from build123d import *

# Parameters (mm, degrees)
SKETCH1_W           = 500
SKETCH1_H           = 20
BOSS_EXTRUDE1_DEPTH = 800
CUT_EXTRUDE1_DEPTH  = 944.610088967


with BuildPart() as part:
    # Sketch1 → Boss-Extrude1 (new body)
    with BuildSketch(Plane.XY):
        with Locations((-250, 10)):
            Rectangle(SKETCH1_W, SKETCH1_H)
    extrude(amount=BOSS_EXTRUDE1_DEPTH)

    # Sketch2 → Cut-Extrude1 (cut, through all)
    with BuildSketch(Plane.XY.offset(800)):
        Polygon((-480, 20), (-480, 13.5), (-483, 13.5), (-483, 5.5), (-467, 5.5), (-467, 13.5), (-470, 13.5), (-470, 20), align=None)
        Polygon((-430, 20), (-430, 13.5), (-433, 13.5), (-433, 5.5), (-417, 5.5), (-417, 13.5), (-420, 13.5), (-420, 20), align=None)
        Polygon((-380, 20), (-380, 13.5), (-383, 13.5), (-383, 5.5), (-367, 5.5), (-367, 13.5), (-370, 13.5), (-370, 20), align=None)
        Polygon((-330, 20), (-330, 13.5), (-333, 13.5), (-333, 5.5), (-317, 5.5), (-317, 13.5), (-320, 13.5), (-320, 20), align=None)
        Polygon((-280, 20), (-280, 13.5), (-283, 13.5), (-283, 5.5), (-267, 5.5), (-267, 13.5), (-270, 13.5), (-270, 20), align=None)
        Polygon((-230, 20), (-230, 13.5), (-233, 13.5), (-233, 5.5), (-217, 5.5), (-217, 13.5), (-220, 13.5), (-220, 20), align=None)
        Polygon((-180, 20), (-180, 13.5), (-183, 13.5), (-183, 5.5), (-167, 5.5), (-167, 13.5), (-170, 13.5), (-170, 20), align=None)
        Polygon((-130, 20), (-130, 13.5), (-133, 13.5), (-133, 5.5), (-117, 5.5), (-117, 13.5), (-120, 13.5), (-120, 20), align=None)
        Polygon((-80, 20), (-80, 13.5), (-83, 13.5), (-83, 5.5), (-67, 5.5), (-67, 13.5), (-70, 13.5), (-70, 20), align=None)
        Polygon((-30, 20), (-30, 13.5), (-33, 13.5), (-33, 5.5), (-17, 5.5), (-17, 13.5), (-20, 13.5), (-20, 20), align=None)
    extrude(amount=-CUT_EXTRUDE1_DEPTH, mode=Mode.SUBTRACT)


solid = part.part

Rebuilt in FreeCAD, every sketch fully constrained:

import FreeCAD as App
import Part
import Sketcher
from FreeCAD import Vector

doc = App.newDocument("Part")
params = doc.addObject("Spreadsheet::Sheet", "Params")
for row, (alias, value) in enumerate([
    ("sketch1_width", "500 mm"),
    ("sketch1_height", "20 mm"),
    ("pad1_length", "800 mm"),
    ("sketch2_width", "3 mm"),
    ("sketch2_width2", "16 mm"),
    ("sketch2_height", "8 mm"),
    ("sketch2_height2", "6.5 mm"),
], start=1):
    params.set(f"A{row}", alias)
    params.set(f"B{row}", "=" + value)
    params.setAlias(f"B{row}", alias)

body = doc.addObject("PartDesign::Body", "Body")

# Sketch on XY plane
sketch1 = doc.addObject("Sketcher::SketchObject", "Sketch")
body.addObject(sketch1)
sketch1.AttachmentSupport = (doc.XY_Plane, [""])
sketch1.MapMode = "FlatFace"
sketch1.addGeometry([
    Part.LineSegment(Vector(-500, 20, 0), Vector(-500, 0, 0)),
    Part.LineSegment(Vector(-500, 0, 0), Vector(0, 0, 0)),
    Part.LineSegment(Vector(0, 0, 0), Vector(0, 20, 0)),
    Part.LineSegment(Vector(0, 20, 0), Vector(-500, 20, 0)),
], False)
sketch1.addConstraint([
    Sketcher.Constraint("Coincident", 0, 2, 1, 1),
    Sketcher.Constraint("Coincident", 1, 2, 2, 1),
    Sketcher.Constraint("Coincident", 2, 2, 3, 1),
    Sketcher.Constraint("Coincident", 3, 2, 0, 1),
    Sketcher.Constraint("Vertical", 0),
    Sketcher.Constraint("Horizontal", 1),
    Sketcher.Constraint("Vertical", 2),
    Sketcher.Constraint("Horizontal", 3),
    Sketcher.Constraint("Coincident", 1, 2, -1, 1),
    Sketcher.Constraint("DistanceX", 1, 1, 1, 2, 500.0),
    Sketcher.Constraint("DistanceY", 0, 2, 0, 1, 20.0),
])
sketch1.setExpression("Constraints[9]", "Params.sketch1_width")
sketch1.setExpression("Constraints[10]", "Params.sketch1_height")
pad1 = doc.addObject("PartDesign::Pad", "Pad")
body.addObject(pad1)
pad1.Profile = sketch1
pad1.setExpression("Length", "Params.pad1_length")

# Sketch on XY plane
sketch2 = doc.addObject("Sketcher::SketchObject", "Sketch001")
body.addObject(sketch2)
sketch2.AttachmentSupport = (doc.XY_Plane, [""])
sketch2.MapMode = "FlatFace"
sketch2.AttachmentOffset = App.Placement(Vector(0, 0, 800), App.Rotation())
sketch2.addGeometry([
    Part.LineSegment(Vector(-480, 20, 0), Vector(-480, 13.5, 0)),  # 0
    Part.LineSegment(Vector(-480, 13.5, 0), Vector(-483, 13.5, 0)),  # 1
    Part.LineSegment(Vector(-483, 13.5, 0), Vector(-483, 5.5, 0)),  # 2
    Part.LineSegment(Vector(-483, 5.5, 0), Vector(-467, 5.5, 0)),  # 3
    Part.LineSegment(Vector(-467, 5.5, 0), Vector(-467, 13.5, 0)),  # 4
    Part.LineSegment(Vector(-467, 13.5, 0), Vector(-470, 13.5, 0)),  # 5
    Part.LineSegment(Vector(-470, 13.5, 0), Vector(-470, 20, 0)),  # 6
    Part.LineSegment(Vector(-470, 20, 0), Vector(-480, 20, 0)),  # 7
    Part.LineSegment(Vector(-430, 20, 0), Vector(-430, 13.5, 0)),  # 8
    Part.LineSegment(Vector(-430, 13.5, 0), Vector(-433, 13.5, 0)),  # 9
    Part.LineSegment(Vector(-433, 13.5, 0), Vector(-433, 5.5, 0)),  # 10
    Part.LineSegment(Vector(-433, 5.5, 0), Vector(-417, 5.5, 0)),  # 11
    Part.LineSegment(Vector(-417, 5.5, 0), Vector(-417, 13.5, 0)),  # 12
    Part.LineSegment(Vector(-417, 13.5, 0), Vector(-420, 13.5, 0)),  # 13
    Part.LineSegment(Vector(-420, 13.5, 0), Vector(-420, 20, 0)),  # 14
    Part.LineSegment(Vector(-420, 20, 0), Vector(-430, 20, 0)),  # 15
    Part.LineSegment(Vector(-380, 20, 0), Vector(-380, 13.5, 0)),  # 16
    Part.LineSegment(Vector(-380, 13.5, 0), Vector(-383, 13.5, 0)),  # 17
    Part.LineSegment(Vector(-383, 13.5, 0), Vector(-383, 5.5, 0)),  # 18
    Part.LineSegment(Vector(-383, 5.5, 0), Vector(-367, 5.5, 0)),  # 19
    Part.LineSegment(Vector(-367, 5.5, 0), Vector(-367, 13.5, 0)),  # 20
    Part.LineSegment(Vector(-367, 13.5, 0), Vector(-370, 13.5, 0)),  # 21
    Part.LineSegment(Vector(-370, 13.5, 0), Vector(-370, 20, 0)),  # 22
    Part.LineSegment(Vector(-370, 20, 0), Vector(-380, 20, 0)),  # 23
    Part.LineSegment(Vector(-330, 20, 0), Vector(-330, 13.5, 0)),  # 24
    Part.LineSegment(Vector(-330, 13.5, 0), Vector(-333, 13.5, 0)),  # 25
    Part.LineSegment(Vector(-333, 13.5, 0), Vector(-333, 5.5, 0)),  # 26
    Part.LineSegment(Vector(-333, 5.5, 0), Vector(-317, 5.5, 0)),  # 27
    Part.LineSegment(Vector(-317, 5.5, 0), Vector(-317, 13.5, 0)),  # 28
    Part.LineSegment(Vector(-317, 13.5, 0), Vector(-320, 13.5, 0)),  # 29
    Part.LineSegment(Vector(-320, 13.5, 0), Vector(-320, 20, 0)),  # 30
    Part.LineSegment(Vector(-320, 20, 0), Vector(-330, 20, 0)),  # 31
    Part.LineSegment(Vector(-280, 20, 0), Vector(-280, 13.5, 0)),  # 32
    Part.LineSegment(Vector(-280, 13.5, 0), Vector(-283, 13.5, 0)),  # 33
    Part.LineSegment(Vector(-283, 13.5, 0), Vector(-283, 5.5, 0)),  # 34
    Part.LineSegment(Vector(-283, 5.5, 0), Vector(-267, 5.5, 0)),  # 35
    Part.LineSegment(Vector(-267, 5.5, 0), Vector(-267, 13.5, 0)),  # 36
    Part.LineSegment(Vector(-267, 13.5, 0), Vector(-270, 13.5, 0)),  # 37
    Part.LineSegment(Vector(-270, 13.5, 0), Vector(-270, 20, 0)),  # 38
    Part.LineSegment(Vector(-270, 20, 0), Vector(-280, 20, 0)),  # 39
    Part.LineSegment(Vector(-230, 20, 0), Vector(-230, 13.5, 0)),  # 40
    Part.LineSegment(Vector(-230, 13.5, 0), Vector(-233, 13.5, 0)),  # 41
    Part.LineSegment(Vector(-233, 13.5, 0), Vector(-233, 5.5, 0)),  # 42
    Part.LineSegment(Vector(-233, 5.5, 0), Vector(-217, 5.5, 0)),  # 43
    Part.LineSegment(Vector(-217, 5.5, 0), Vector(-217, 13.5, 0)),  # 44
    Part.LineSegment(Vector(-217, 13.5, 0), Vector(-220, 13.5, 0)),  # 45
    Part.LineSegment(Vector(-220, 13.5, 0), Vector(-220, 20, 0)),  # 46
    Part.LineSegment(Vector(-220, 20, 0), Vector(-230, 20, 0)),  # 47
    Part.LineSegment(Vector(-180, 20, 0), Vector(-180, 13.5, 0)),  # 48
    Part.LineSegment(Vector(-180, 13.5, 0), Vector(-183, 13.5, 0)),  # 49
    Part.LineSegment(Vector(-183, 13.5, 0), Vector(-183, 5.5, 0)),  # 50
    Part.LineSegment(Vector(-183, 5.5, 0), Vector(-167, 5.5, 0)),  # 51
    Part.LineSegment(Vector(-167, 5.5, 0), Vector(-167, 13.5, 0)),  # 52
    Part.LineSegment(Vector(-167, 13.5, 0), Vector(-170, 13.5, 0)),  # 53
    Part.LineSegment(Vector(-170, 13.5, 0), Vector(-170, 20, 0)),  # 54
    Part.LineSegment(Vector(-170, 20, 0), Vector(-180, 20, 0)),  # 55
    Part.LineSegment(Vector(-130, 20, 0), Vector(-130, 13.5, 0)),  # 56
    Part.LineSegment(Vector(-130, 13.5, 0), Vector(-133, 13.5, 0)),  # 57
    Part.LineSegment(Vector(-133, 13.5, 0), Vector(-133, 5.5, 0)),  # 58
    Part.LineSegment(Vector(-133, 5.5, 0), Vector(-117, 5.5, 0)),  # 59
    Part.LineSegment(Vector(-117, 5.5, 0), Vector(-117, 13.5, 0)),  # 60
    Part.LineSegment(Vector(-117, 13.5, 0), Vector(-120, 13.5, 0)),  # 61
    Part.LineSegment(Vector(-120, 13.5, 0), Vector(-120, 20, 0)),  # 62
    Part.LineSegment(Vector(-120, 20, 0), Vector(-130, 20, 0)),  # 63
    Part.LineSegment(Vector(-80, 20, 0), Vector(-80, 13.5, 0)),  # 64
    Part.LineSegment(Vector(-80, 13.5, 0), Vector(-83, 13.5, 0)),  # 65
    Part.LineSegment(Vector(-83, 13.5, 0), Vector(-83, 5.5, 0)),  # 66
    Part.LineSegment(Vector(-83, 5.5, 0), Vector(-67, 5.5, 0)),  # 67
    Part.LineSegment(Vector(-67, 5.5, 0), Vector(-67, 13.5, 0)),  # 68
    Part.LineSegment(Vector(-67, 13.5, 0), Vector(-70, 13.5, 0)),  # 69
    Part.LineSegment(Vector(-70, 13.5, 0), Vector(-70, 20, 0)),  # 70
    Part.LineSegment(Vector(-70, 20, 0), Vector(-80, 20, 0)),  # 71
    Part.LineSegment(Vector(-30, 20, 0), Vector(-30, 13.5, 0)),  # 72
    Part.LineSegment(Vector(-30, 13.5, 0), Vector(-33, 13.5, 0)),  # 73
    Part.LineSegment(Vector(-33, 13.5, 0), Vector(-33, 5.5, 0)),  # 74
    Part.LineSegment(Vector(-33, 5.5, 0), Vector(-17, 5.5, 0)),  # 75
    Part.LineSegment(Vector(-17, 5.5, 0), Vector(-17, 13.5, 0)),  # 76
    Part.LineSegment(Vector(-17, 13.5, 0), Vector(-20, 13.5, 0)),  # 77
    Part.LineSegment(Vector(-20, 13.5, 0), Vector(-20, 20, 0)),  # 78
    Part.LineSegment(Vector(-20, 20, 0), Vector(-30, 20, 0)),  # 79
], False)
sketch2.addConstraint([
    Sketcher.Constraint("Coincident", 0, 2, 1, 1),
    Sketcher.Constraint("Coincident", 1, 2, 2, 1),
    Sketcher.Constraint("Coincident", 2, 2, 3, 1),
    Sketcher.Constraint("Coincident", 3, 2, 4, 1),
    Sketcher.Constraint("Coincident", 4, 2, 5, 1),
    Sketcher.Constraint("Coincident", 5, 2, 6, 1),
    Sketcher.Constraint("Coincident", 6, 2, 7, 1),
    Sketcher.Constraint("Coincident", 7, 2, 0, 1),
    Sketcher.Constraint("Coincident", 8, 2, 9, 1),
    Sketcher.Constraint("Coincident", 9, 2, 10, 1),
    Sketcher.Constraint("Coincident", 10, 2, 11, 1),
    Sketcher.Constraint("Coincident", 11, 2, 12, 1),
    Sketcher.Constraint("Coincident", 12, 2, 13, 1),
    Sketcher.Constraint("Coincident", 13, 2, 14, 1),
    Sketcher.Constraint("Coincident", 14, 2, 15, 1),
    Sketcher.Constraint("Coincident", 15, 2, 8, 1),
    Sketcher.Constraint("Coincident", 16, 2, 17, 1),
    Sketcher.Constraint("Coincident", 17, 2, 18, 1),
    Sketcher.Constraint("Coincident", 18, 2, 19, 1),
    Sketcher.Constraint("Coincident", 19, 2, 20, 1),
    Sketcher.Constraint("Coincident", 20, 2, 21, 1),
    Sketcher.Constraint("Coincident", 21, 2, 22, 1),
    Sketcher.Constraint("Coincident", 22, 2, 23, 1),
    Sketcher.Constraint("Coincident", 23, 2, 16, 1),
    Sketcher.Constraint("Coincident", 24, 2, 25, 1),
    Sketcher.Constraint("Coincident", 25, 2, 26, 1),
    Sketcher.Constraint("Coincident", 26, 2, 27, 1),
    Sketcher.Constraint("Coincident", 27, 2, 28, 1),
    Sketcher.Constraint("Coincident", 28, 2, 29, 1),
    Sketcher.Constraint("Coincident", 29, 2, 30, 1),
    Sketcher.Constraint("Coincident", 30, 2, 31, 1),
    Sketcher.Constraint("Coincident", 31, 2, 24, 1),
    Sketcher.Constraint("Coincident", 32, 2, 33, 1),
    Sketcher.Constraint("Coincident", 33, 2, 34, 1),
    Sketcher.Constraint("Coincident", 34, 2, 35, 1),
    Sketcher.Constraint("Coincident", 35, 2, 36, 1),
    Sketcher.Constraint("Coincident", 36, 2, 37, 1),
    Sketcher.Constraint("Coincident", 37, 2, 38, 1),
    Sketcher.Constraint("Coincident", 38, 2, 39, 1),
    Sketcher.Constraint("Coincident", 39, 2, 32, 1),
    Sketcher.Constraint("Coincident", 40, 2, 41, 1),
    Sketcher.Constraint("Coincident", 41, 2, 42, 1),
    Sketcher.Constraint("Coincident", 42, 2, 43, 1),
    Sketcher.Constraint("Coincident", 43, 2, 44, 1),
    Sketcher.Constraint("Coincident", 44, 2, 45, 1),
    Sketcher.Constraint("Coincident", 45, 2, 46, 1),
    Sketcher.Constraint("Coincident", 46, 2, 47, 1),
    Sketcher.Constraint("Coincident", 47, 2, 40, 1),
    Sketcher.Constraint("Coincident", 48, 2, 49, 1),
    Sketcher.Constraint("Coincident", 49, 2, 50, 1),
    Sketcher.Constraint("Coincident", 50, 2, 51, 1),
    Sketcher.Constraint("Coincident", 51, 2, 52, 1),
    Sketcher.Constraint("Coincident", 52, 2, 53, 1),
    Sketcher.Constraint("Coincident", 53, 2, 54, 1),
    Sketcher.Constraint("Coincident", 54, 2, 55, 1),
    Sketcher.Constraint("Coincident", 55, 2, 48, 1),
    Sketcher.Constraint("Coincident", 56, 2, 57, 1),
    Sketcher.Constraint("Coincident", 57, 2, 58, 1),
    Sketcher.Constraint("Coincident", 58, 2, 59, 1),
    Sketcher.Constraint("Coincident", 59, 2, 60, 1),
    Sketcher.Constraint("Coincident", 60, 2, 61, 1),
    Sketcher.Constraint("Coincident", 61, 2, 62, 1),
    Sketcher.Constraint("Coincident", 62, 2, 63, 1),
    Sketcher.Constraint("Coincident", 63, 2, 56, 1),
    Sketcher.Constraint("Coincident", 64, 2, 65, 1),
    Sketcher.Constraint("Coincident", 65, 2, 66, 1),
    Sketcher.Constraint("Coincident", 66, 2, 67, 1),
    Sketcher.Constraint("Coincident", 67, 2, 68, 1),
    Sketcher.Constraint("Coincident", 68, 2, 69, 1),
    Sketcher.Constraint("Coincident", 69, 2, 70, 1),
    Sketcher.Constraint("Coincident", 70, 2, 71, 1),
    Sketcher.Constraint("Coincident", 71, 2, 64, 1),
    Sketcher.Constraint("Coincident", 72, 2, 73, 1),
    Sketcher.Constraint("Coincident", 73, 2, 74, 1),
    Sketcher.Constraint("Coincident", 74, 2, 75, 1),
    Sketcher.Constraint("Coincident", 75, 2, 76, 1),
    Sketcher.Constraint("Coincident", 76, 2, 77, 1),
    Sketcher.Constraint("Coincident", 77, 2, 78, 1),
    Sketcher.Constraint("Coincident", 78, 2, 79, 1),
    Sketcher.Constraint("Coincident", 79, 2, 72, 1),
    Sketcher.Constraint("Vertical", 0),
    Sketcher.Constraint("Horizontal", 1),
    Sketcher.Constraint("Vertical", 2),
    Sketcher.Constraint("Horizontal", 3),
    Sketcher.Constraint("Vertical", 4),
    Sketcher.Constraint("Horizontal", 5),
    Sketcher.Constraint("Vertical", 6),
    Sketcher.Constraint("Horizontal", 7),
    Sketcher.Constraint("Vertical", 8),
    Sketcher.Constraint("Horizontal", 9),
    Sketcher.Constraint("Vertical", 10),
    Sketcher.Constraint("Horizontal", 11),
    Sketcher.Constraint("Vertical", 12),
    Sketcher.Constraint("Horizontal", 13),
    Sketcher.Constraint("Vertical", 14),
    Sketcher.Constraint("Horizontal", 15),
    Sketcher.Constraint("Vertical", 16),
    Sketcher.Constraint("Horizontal", 17),
    Sketcher.Constraint("Vertical", 18),
    Sketcher.Constraint("Horizontal", 19),
    Sketcher.Constraint("Vertical", 20),
    Sketcher.Constraint("Horizontal", 21),
    Sketcher.Constraint("Vertical", 22),
    Sketcher.Constraint("Horizontal", 23),
    Sketcher.Constraint("Vertical", 24),
    Sketcher.Constraint("Horizontal", 25),
    Sketcher.Constraint("Vertical", 26),
    Sketcher.Constraint("Horizontal", 27),
    Sketcher.Constraint("Vertical", 28),
    Sketcher.Constraint("Horizontal", 29),
    Sketcher.Constraint("Vertical", 30),
    Sketcher.Constraint("Horizontal", 31),
    Sketcher.Constraint("Vertical", 32),
    Sketcher.Constraint("Horizontal", 33),
    Sketcher.Constraint("Vertical", 34),
    Sketcher.Constraint("Horizontal", 35),
    Sketcher.Constraint("Vertical", 36),
    Sketcher.Constraint("Horizontal", 37),
    Sketcher.Constraint("Vertical", 38),
    Sketcher.Constraint("Horizontal", 39),
    Sketcher.Constraint("Vertical", 40),
    Sketcher.Constraint("Horizontal", 41),
    Sketcher.Constraint("Vertical", 42),
    Sketcher.Constraint("Horizontal", 43),
    Sketcher.Constraint("Vertical", 44),
    Sketcher.Constraint("Horizontal", 45),
    Sketcher.Constraint("Vertical", 46),
    Sketcher.Constraint("Horizontal", 47),
    Sketcher.Constraint("Vertical", 48),
    Sketcher.Constraint("Horizontal", 49),
    Sketcher.Constraint("Vertical", 50),
    Sketcher.Constraint("Horizontal", 51),
    Sketcher.Constraint("Vertical", 52),
    Sketcher.Constraint("Horizontal", 53),
    Sketcher.Constraint("Vertical", 54),
    Sketcher.Constraint("Horizontal", 55),
    Sketcher.Constraint("Vertical", 56),
    Sketcher.Constraint("Horizontal", 57),
    Sketcher.Constraint("Vertical", 58),
    Sketcher.Constraint("Horizontal", 59),
    Sketcher.Constraint("Vertical", 60),
    Sketcher.Constraint("Horizontal", 61),
    Sketcher.Constraint("Vertical", 62),
    Sketcher.Constraint("Horizontal", 63),
    Sketcher.Constraint("Vertical", 64),
    Sketcher.Constraint("Horizontal", 65),
    Sketcher.Constraint("Vertical", 66),
    Sketcher.Constraint("Horizontal", 67),
    Sketcher.Constraint("Vertical", 68),
    Sketcher.Constraint("Horizontal", 69),
    Sketcher.Constraint("Vertical", 70),
    Sketcher.Constraint("Horizontal", 71),
    Sketcher.Constraint("Vertical", 72),
    Sketcher.Constraint("Horizontal", 73),
    Sketcher.Constraint("Vertical", 74),
    Sketcher.Constraint("Horizontal", 75),
    Sketcher.Constraint("Vertical", 76),
    Sketcher.Constraint("Horizontal", 77),
    Sketcher.Constraint("Vertical", 78),
    Sketcher.Constraint("Horizontal", 79),
    Sketcher.Constraint("Horizontal", 1, 2, 4, 2),
    Sketcher.Constraint("Horizontal", 5, 2, 8, 2),
    Sketcher.Constraint("Horizontal", 3, 2, 10, 2),
    Sketcher.Constraint("Horizontal", 9, 2, 12, 2),
    Sketcher.Constraint("Horizontal", 7, 2, 14, 2),
    Sketcher.Constraint("Horizontal", 13, 2, 16, 2),
    Sketcher.Constraint("Horizontal", 11, 2, 18, 2),
    Sketcher.Constraint("Horizontal", 17, 2, 20, 2),
    Sketcher.Constraint("Horizontal", 15, 2, 22, 2),
    Sketcher.Constraint("Horizontal", 21, 2, 24, 2),
    Sketcher.Constraint("Horizontal", 19, 2, 26, 2),
    Sketcher.Constraint("Horizontal", 25, 2, 28, 2),
    Sketcher.Constraint("Horizontal", 23, 2, 30, 2),
    Sketcher.Constraint("Horizontal", 29, 2, 32, 2),
    Sketcher.Constraint("Horizontal", 27, 2, 34, 2),
    Sketcher.Constraint("Horizontal", 33, 2, 36, 2),
    Sketcher.Constraint("Horizontal", 31, 2, 38, 2),
    Sketcher.Constraint("Horizontal", 37, 2, 40, 2),
    Sketcher.Constraint("Horizontal", 35, 2, 42, 2),
    Sketcher.Constraint("Horizontal", 41, 2, 44, 2),
    Sketcher.Constraint("Horizontal", 39, 2, 46, 2),
    Sketcher.Constraint("Horizontal", 45, 2, 48, 2),
    Sketcher.Constraint("Horizontal", 43, 2, 50, 2),
    Sketcher.Constraint("Horizontal", 49, 2, 52, 2),
    Sketcher.Constraint("Horizontal", 47, 2, 54, 2),
    Sketcher.Constraint("Horizontal", 53, 2, 56, 2),
    Sketcher.Constraint("Horizontal", 51, 2, 58, 2),
    Sketcher.Constraint("Horizontal", 57, 2, 60, 2),
    Sketcher.Constraint("Horizontal", 55, 2, 62, 2),
    Sketcher.Constraint("Horizontal", 61, 2, 64, 2),
    Sketcher.Constraint("Horizontal", 59, 2, 66, 2),
    Sketcher.Constraint("Horizontal", 65, 2, 68, 2),
    Sketcher.Constraint("Horizontal", 63, 2, 70, 2),
    Sketcher.Constraint("Horizontal", 69, 2, 72, 2),
    Sketcher.Constraint("Horizontal", 67, 2, 74, 2),
    Sketcher.Constraint("Horizontal", 73, 2, 76, 2),
    Sketcher.Constraint("Horizontal", 71, 2, 78, 2),
    Sketcher.Constraint("Equal", 1, 5),
    Sketcher.Constraint("Equal", 5, 9),
    Sketcher.Constraint("Equal", 3, 11),
    Sketcher.Constraint("Equal", 9, 13),
    Sketcher.Constraint("Equal", 13, 17),
    Sketcher.Constraint("Equal", 11, 19),
    Sketcher.Constraint("Equal", 17, 21),
    Sketcher.Constraint("Equal", 21, 25),
    Sketcher.Constraint("Equal", 19, 27),
    Sketcher.Constraint("Equal", 25, 29),
    Sketcher.Constraint("Equal", 29, 33),
    Sketcher.Constraint("Equal", 27, 35),
    Sketcher.Constraint("Equal", 33, 37),
    Sketcher.Constraint("Equal", 37, 41),
    Sketcher.Constraint("Equal", 35, 43),
    Sketcher.Constraint("Equal", 41, 45),
    Sketcher.Constraint("Equal", 45, 49),
    Sketcher.Constraint("Equal", 43, 51),
    Sketcher.Constraint("Equal", 49, 53),
    Sketcher.Constraint("Equal", 53, 57),
    Sketcher.Constraint("Equal", 51, 59),
    Sketcher.Constraint("Equal", 57, 61),
    Sketcher.Constraint("Equal", 61, 65),
    Sketcher.Constraint("Equal", 59, 67),
    Sketcher.Constraint("Equal", 65, 69),
    Sketcher.Constraint("Equal", 69, 73),
    Sketcher.Constraint("Equal", 67, 75),
    Sketcher.Constraint("Equal", 73, 77),
    Sketcher.Constraint("DistanceX", 1, 2, 1, 1, 3.0),
    Sketcher.Constraint("DistanceX", 3, 1, 3, 2, 16.0),
    Sketcher.Constraint("DistanceY", 2, 2, 2, 1, 8.0),
    Sketcher.Constraint("DistanceY", 0, 2, 0, 1, 6.5),
    Sketcher.Constraint("DistanceX", 0, 2, -1, 1, 480.0),
    Sketcher.Constraint("DistanceY", -1, 1, 6, 2, 20.0),
    Sketcher.Constraint("DistanceX", 8, 2, -1, 1, 430.0),
    Sketcher.Constraint("DistanceX", 16, 2, -1, 1, 380.0),
    Sketcher.Constraint("DistanceX", 24, 2, -1, 1, 330.0),
    Sketcher.Constraint("DistanceX", 32, 2, -1, 1, 280.0),
    Sketcher.Constraint("DistanceX", 40, 2, -1, 1, 230.0),
    Sketcher.Constraint("DistanceX", 48, 2, -1, 1, 180.0),
    Sketcher.Constraint("DistanceX", 56, 2, -1, 1, 130.0),
    Sketcher.Constraint("DistanceX", 64, 2, -1, 1, 80.0),
    Sketcher.Constraint("DistanceX", 72, 2, -1, 1, 30.0),
])
sketch2.setExpression("Constraints[225]", "Params.sketch2_width")
sketch2.setExpression("Constraints[226]", "Params.sketch2_width2")
sketch2.setExpression("Constraints[227]", "Params.sketch2_height")
sketch2.setExpression("Constraints[228]", "Params.sketch2_height2")
pocket1 = doc.addObject("PartDesign::Pocket", "Pocket")
body.addObject(pocket1)
pocket1.Profile = sketch2
pocket1.Type = "ThroughAll"

doc.recompute()
